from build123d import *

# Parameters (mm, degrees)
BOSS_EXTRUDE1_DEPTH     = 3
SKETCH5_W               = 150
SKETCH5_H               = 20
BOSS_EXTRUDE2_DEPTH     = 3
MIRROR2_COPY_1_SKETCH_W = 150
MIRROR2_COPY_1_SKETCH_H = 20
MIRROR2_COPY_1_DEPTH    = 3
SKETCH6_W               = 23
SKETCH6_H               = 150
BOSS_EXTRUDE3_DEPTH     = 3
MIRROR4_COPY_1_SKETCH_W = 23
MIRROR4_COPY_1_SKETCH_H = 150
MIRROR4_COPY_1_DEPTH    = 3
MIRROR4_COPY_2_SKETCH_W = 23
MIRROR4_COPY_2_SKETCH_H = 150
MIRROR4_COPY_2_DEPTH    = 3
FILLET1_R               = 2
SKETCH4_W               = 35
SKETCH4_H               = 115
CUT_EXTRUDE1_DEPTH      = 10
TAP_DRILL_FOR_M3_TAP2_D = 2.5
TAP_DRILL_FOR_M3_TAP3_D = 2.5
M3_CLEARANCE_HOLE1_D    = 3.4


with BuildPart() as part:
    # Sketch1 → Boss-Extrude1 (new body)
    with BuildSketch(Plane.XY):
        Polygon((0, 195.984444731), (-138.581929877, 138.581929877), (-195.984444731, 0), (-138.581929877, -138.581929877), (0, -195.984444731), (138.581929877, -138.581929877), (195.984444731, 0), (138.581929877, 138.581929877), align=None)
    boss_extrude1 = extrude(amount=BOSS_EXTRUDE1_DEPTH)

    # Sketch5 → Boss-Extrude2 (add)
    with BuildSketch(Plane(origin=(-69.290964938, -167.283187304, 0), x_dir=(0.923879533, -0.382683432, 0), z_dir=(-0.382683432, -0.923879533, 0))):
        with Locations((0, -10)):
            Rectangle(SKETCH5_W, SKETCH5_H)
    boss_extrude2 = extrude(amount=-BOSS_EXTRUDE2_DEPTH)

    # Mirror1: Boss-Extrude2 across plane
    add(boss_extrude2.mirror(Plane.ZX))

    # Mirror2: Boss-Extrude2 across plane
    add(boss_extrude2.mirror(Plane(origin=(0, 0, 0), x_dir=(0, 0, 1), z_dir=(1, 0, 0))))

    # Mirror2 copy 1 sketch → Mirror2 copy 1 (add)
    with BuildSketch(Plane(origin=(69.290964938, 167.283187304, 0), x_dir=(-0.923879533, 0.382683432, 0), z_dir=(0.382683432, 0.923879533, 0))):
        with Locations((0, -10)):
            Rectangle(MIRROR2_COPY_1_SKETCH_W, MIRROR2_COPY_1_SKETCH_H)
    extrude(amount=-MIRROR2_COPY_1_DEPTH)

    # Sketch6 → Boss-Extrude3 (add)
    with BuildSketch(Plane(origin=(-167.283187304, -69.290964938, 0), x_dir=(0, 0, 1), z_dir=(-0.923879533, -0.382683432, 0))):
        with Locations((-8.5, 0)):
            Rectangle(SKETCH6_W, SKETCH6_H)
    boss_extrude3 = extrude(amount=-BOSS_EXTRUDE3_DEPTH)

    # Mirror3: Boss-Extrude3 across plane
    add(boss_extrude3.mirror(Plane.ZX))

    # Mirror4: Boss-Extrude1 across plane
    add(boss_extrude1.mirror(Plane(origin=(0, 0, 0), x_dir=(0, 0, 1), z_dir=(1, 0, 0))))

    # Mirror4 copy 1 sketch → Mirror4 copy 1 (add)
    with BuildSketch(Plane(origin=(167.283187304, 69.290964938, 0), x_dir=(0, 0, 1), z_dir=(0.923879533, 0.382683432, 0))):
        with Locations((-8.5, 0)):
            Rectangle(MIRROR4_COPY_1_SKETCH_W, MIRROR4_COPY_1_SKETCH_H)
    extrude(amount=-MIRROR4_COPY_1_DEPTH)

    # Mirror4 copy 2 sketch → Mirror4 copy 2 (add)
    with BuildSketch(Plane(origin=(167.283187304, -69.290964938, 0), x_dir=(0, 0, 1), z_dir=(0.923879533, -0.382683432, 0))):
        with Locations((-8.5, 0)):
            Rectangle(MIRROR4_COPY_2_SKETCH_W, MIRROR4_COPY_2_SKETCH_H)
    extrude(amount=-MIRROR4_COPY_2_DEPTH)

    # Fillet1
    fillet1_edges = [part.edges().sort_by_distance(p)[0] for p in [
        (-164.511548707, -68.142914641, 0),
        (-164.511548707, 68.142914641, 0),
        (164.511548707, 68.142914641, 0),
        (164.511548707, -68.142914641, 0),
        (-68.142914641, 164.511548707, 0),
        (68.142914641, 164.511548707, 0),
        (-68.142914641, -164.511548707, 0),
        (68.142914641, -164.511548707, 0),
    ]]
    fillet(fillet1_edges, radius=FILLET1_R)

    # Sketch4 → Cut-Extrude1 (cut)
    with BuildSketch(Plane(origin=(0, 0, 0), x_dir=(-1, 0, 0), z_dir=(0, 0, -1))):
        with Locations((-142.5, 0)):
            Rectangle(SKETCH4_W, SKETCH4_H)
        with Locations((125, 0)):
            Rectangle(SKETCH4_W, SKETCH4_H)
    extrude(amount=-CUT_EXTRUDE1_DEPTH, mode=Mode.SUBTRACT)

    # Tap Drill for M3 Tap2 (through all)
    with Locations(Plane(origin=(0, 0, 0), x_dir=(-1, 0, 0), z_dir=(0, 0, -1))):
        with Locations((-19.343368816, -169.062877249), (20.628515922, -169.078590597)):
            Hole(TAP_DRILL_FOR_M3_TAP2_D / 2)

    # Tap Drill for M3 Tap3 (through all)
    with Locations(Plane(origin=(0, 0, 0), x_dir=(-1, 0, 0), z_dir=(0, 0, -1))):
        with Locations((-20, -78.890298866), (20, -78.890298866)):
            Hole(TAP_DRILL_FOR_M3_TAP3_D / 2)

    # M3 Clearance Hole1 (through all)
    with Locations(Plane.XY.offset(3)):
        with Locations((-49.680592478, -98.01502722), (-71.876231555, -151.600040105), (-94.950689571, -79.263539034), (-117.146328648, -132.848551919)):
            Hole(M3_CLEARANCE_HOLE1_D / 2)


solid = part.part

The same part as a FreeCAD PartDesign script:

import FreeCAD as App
import Part
import Sketcher
Q = App.Units.Quantity


def edges_at(feature, points):
    """Names of the edges that pass closest to the given points."""
    edges = feature.Shape.Edges
    near = lambda p: min(range(len(edges)), key=lambda i: edges[i].distToShape(Part.Vertex(*p))[0])
    return sorted({f"Edge{near(p) + 1}" for p in points})

doc = App.newDocument("Part")
params = doc.addObject("Spreadsheet::Sheet", "Params")
for row, (alias, value) in enumerate([
    ("sketch1_length", "150 mm"),
    ("pad1_length", "3 mm"),
    ("sketch2_width", "150 mm"),
    ("sketch2_height", "20 mm"),
    ("pad2_length", "3 mm"),
    ("sketch3_width", "150 mm"),
    ("sketch3_height", "20 mm"),
    ("pad3_length", "3 mm"),
    ("sketch4_width", "23 mm"),
    ("sketch4_height", "150 mm"),
    ("pad4_length", "3 mm"),
    ("sketch5_width", "23 mm"),
    ("sketch5_height", "150 mm"),
    ("pad5_length", "3 mm"),
    ("sketch6_width", "23 mm"),
    ("sketch6_height", "150 mm"),
    ("pad6_length", "3 mm"),
    ("fillet_radius", "2 mm"),
    ("sketch7_width", "35 mm"),
    ("sketch7_height", "115 mm"),
    ("pocket1_length", "10 mm"),
    ("sketch8_diameter", "2.5 mm"),
    ("hole_diameter", "2.5 mm"),
    ("sketch9_diameter", "2.5 mm"),
    ("hole2_diameter", "2.5 mm"),
    ("sketch10_diameter", "3.4 mm"),
    ("hole3_diameter", "3.4 mm"),
], start=1):
    params.set(f"A{row}", alias)
    params.set(f"B{row}", "=" + value)
    params.setAlias(f"B{row}", alias)

body = doc.addObject("PartDesign::Body", "Body")

sketch1 = body.newObject("Sketcher::SketchObject", "Sketch")
sketch1.AttachmentSupport = (doc.getObject("XY_Plane"), [""])
sketch1.MapMode = "FlatFace"
sketch1.addGeometry([
    Part.LineSegment(App.Vector(0, 196, 0), App.Vector(-139, 139, 0)),
    Part.LineSegment(App.Vector(-139, 139, 0), App.Vector(-196, 0, 0)),
    Part.LineSegment(App.Vector(-196, 0, 0), App.Vector(-139, -139, 0)),
    Part.LineSegment(App.Vector(-139, -139, 0), App.Vector(0, -196, 0)),
    Part.LineSegment(App.Vector(0, -196, 0), App.Vector(139, -139, 0)),
    Part.LineSegment(App.Vector(139, -139, 0), App.Vector(196, 0, 0)),
    Part.LineSegment(App.Vector(196, 0, 0), App.Vector(139, 139, 0)),
    Part.LineSegment(App.Vector(139, 139, 0), App.Vector(0, 196, 0)),
], False)
sketch1.addConstraint([
    Sketcher.Constraint("Coincident", 0, 2, 1, 1),
    Sketcher.Constraint("Coincident", 1, 2, 2, 1),
    Sketcher.Constraint("Coincident", 2, 2, 3, 1),
    Sketcher.Constraint("Coincident", 3, 2, 4, 1),
    Sketcher.Constraint("Coincident", 4, 2, 5, 1),
    Sketcher.Constraint("Coincident", 5, 2, 6, 1),
    Sketcher.Constraint("Coincident", 6, 2, 7, 1),
    Sketcher.Constraint("Coincident", 7, 2, 0, 1),
    Sketcher.Constraint("Symmetric", 0, 2, 4, 2, -1, 1),
    Sketcher.Constraint("Symmetric", 1, 2, 5, 2, -1, 1),
    Sketcher.Constraint("Symmetric", 2, 2, 6, 2, -1, 1),
    Sketcher.Constraint("Symmetric", 3, 2, 7, 2, -1, 1),
    Sketcher.Constraint("Symmetric", 2, 2, 4, 2, -2),
    Sketcher.Constraint("PointOnObject", 1, 2, -1),
    Sketcher.Constraint("PointOnObject", 3, 2, -2),
    Sketcher.Constraint("Perpendicular", 0, 2),
    Sketcher.Constraint("Equal", 0, 1),
    Sketcher.Constraint("Distance", 0, Q("150 mm")),
    Sketcher.Constraint("Angle", 0, Q("-157.5 deg")),
])
sketch1.setExpression("Constraints[17]", "Params.sketch1_length")
pad1 = body.newObject("PartDesign::Pad", "Pad")
pad1.Profile = sketch1
pad1.setExpression("Length", "Params.pad1_length")

sketch2 = body.newObject("Sketcher::SketchObject", "Sketch001")
sketch2.Placement = App.Placement(App.Vector(-69.290965, -167.283187, 0), App.Rotation(App.Vector(0.923879533, -0.382683432, 0), App.Vector(0, 0, 1.000000001), App.Vector(-0.382683432, -0.923879533, 0), "ZXY"))
sketch2.addGeometry([
    Part.LineSegment(App.Vector(-75, 0, 0), App.Vector(-75, -20, 0)),
    Part.LineSegment(App.Vector(-75, -20, 0), App.Vector(75, -20, 0)),
    Part.LineSegment(App.Vector(75, -20, 0), App.Vector(75, 0, 0)),
    Part.LineSegment(App.Vector(75, 0, 0), App.Vector(-75, 0, 0)),
], False)
sketch2.addConstraint([
    Sketcher.Constraint("Coincident", 0, 2, 1, 1),
    Sketcher.Constraint("Coincident", 1, 2, 2, 1),
    Sketcher.Constraint("Coincident", 2, 2, 3, 1),
    Sketcher.Constraint("Coincident", 3, 2, 0, 1),
    Sketcher.Constraint("Vertical", 0),
    Sketcher.Constraint("Horizontal", 1),
    Sketcher.Constraint("Vertical", 2),
    Sketcher.Constraint("Horizontal", 3),
    Sketcher.Constraint("Symmetric", 2, 2, 3, 2, -1, 1),
    Sketcher.Constraint("DistanceX", 1, 1, 1, 2, Q("150 mm")),
    Sketcher.Constraint("DistanceY", 0, 2, 0, 1, Q("20 mm")),
])
sketch2.setExpression("Constraints[9]", "Params.sketch2_width")
sketch2.setExpression("Constraints[10]", "Params.sketch2_height")
pad2 = body.newObject("PartDesign::Pad", "Pad001")
pad2.Profile = sketch2
pad2.setExpression("Length", "Params.pad2_length")
pad2.Reversed = True
doc.recompute()

mirrored = body.newObject("PartDesign::Mirrored", "Mirrored")
mirrored.Originals = [pad2]
mirrored.MirrorPlane = (doc.getObject("XZ_Plane"), [""])
body.Tip = mirrored
doc.recompute()

mirrored2 = body.newObject("PartDesign::Mirrored", "Mirrored001")
mirrored2.Originals = [pad2]
mirrored2.MirrorPlane = (doc.getObject("YZ_Plane"), [""])
body.Tip = mirrored2

sketch3 = body.newObject("Sketcher::SketchObject", "Sketch002")
sketch3.Placement = App.Placement(App.Vector(69.290965, 167.283187, 0), App.Rotation(App.Vector(-0.923879533, 0.382683432, 0), App.Vector(0, 0, 1.000000001), App.Vector(0.382683432, 0.923879533, 0), "ZXY"))
sketch3.addGeometry([
    Part.LineSegment(App.Vector(-75, 0, 0), App.Vector(-75, -20, 0)),
    Part.LineSegment(App.Vector(-75, -20, 0), App.Vector(75, -20, 0)),
    Part.LineSegment(App.Vector(75, -20, 0), App.Vector(75, 0, 0)),
    Part.LineSegment(App.Vector(75, 0, 0), App.Vector(-75, 0, 0)),
], False)
sketch3.addConstraint([
    Sketcher.Constraint("Coincident", 0, 2, 1, 1),
    Sketcher.Constraint("Coincident", 1, 2, 2, 1),
    Sketcher.Constraint("Coincident", 2, 2, 3, 1),
    Sketcher.Constraint("Coincident", 3, 2, 0, 1),
    Sketcher.Constraint("Vertical", 0),
    Sketcher.Constraint("Horizontal", 1),
    Sketcher.Constraint("Vertical", 2),
    Sketcher.Constraint("Horizontal", 3),
    Sketcher.Constraint("Symmetric", 2, 2, 3, 2, -1, 1),
    Sketcher.Constraint("DistanceX", 1, 1, 1, 2, Q("150 mm")),
    Sketcher.Constraint("DistanceY", 0, 2, 0, 1, Q("20 mm")),
])
sketch3.setExpression("Constraints[9]", "Params.sketch3_width")
sketch3.setExpression("Constraints[10]", "Params.sketch3_height")
pad3 = body.newObject("PartDesign::Pad", "Pad002")
pad3.Profile = sketch3
pad3.setExpression("Length", "Params.pad3_length")
pad3.Reversed = True

sketch4 = body.newObject("Sketcher::SketchObject", "Sketch003")
sketch4.Placement = App.Placement(App.Vector(-167.283187, -69.290965, 0), App.Rotation(App.Vector(0, 0, 1), App.Vector(-0.382683432, 0.923879533, 0), App.Vector(-0.923879533, -0.382683432, 0), "ZXY"))
sketch4.addGeometry([
    Part.LineSegment(App.Vector(-20, 75, 0), App.Vector(-20, -75, 0)),
    Part.LineSegment(App.Vector(-20, -75, 0), App.Vector(3, -75, 0)),
    Part.LineSegment(App.Vector(3, -75, 0), App.Vector(3, 75, 0)),
    Part.LineSegment(App.Vector(3, 75, 0), App.Vector(-20, 75, 0)),
], False)
sketch4.addConstraint([
    Sketcher.Constraint("Coincident", 0, 2, 1, 1),
    Sketcher.Constraint("Coincident", 1, 2, 2, 1),
    Sketcher.Constraint("Coincident", 2, 2, 3, 1),
    Sketcher.Constraint("Coincident", 3, 2, 0, 1),
    Sketcher.Constraint("Vertical", 0),
    Sketcher.Constraint("Horizontal", 1),
    Sketcher.Constraint("Vertical", 2),
    Sketcher.Constraint("Horizontal", 3),
    Sketcher.Constraint("DistanceX", 1, 1, 1, 2, Q("23 mm")),
    Sketcher.Constraint("DistanceY", 0, 2, 0, 1, Q("150 mm")),
    Sketcher.Constraint("DistanceX", 0, 2, -1, 1, Q("20 mm")),
    Sketcher.Constraint("DistanceY", 0, 2, -1, 1, Q("75 mm")),
])
sketch4.setExpression("Constraints[8]", "Params.sketch4_width")
sketch4.setExpression("Constraints[9]", "Params.sketch4_height")
pad4 = body.newObject("PartDesign::Pad", "Pad003")
pad4.Profile = sketch4
pad4.setExpression("Length", "Params.pad4_length")
pad4.Reversed = True
doc.recompute()

mirrored3 = body.newObject("PartDesign::Mirrored", "Mirrored002")
mirrored3.Originals = [pad4]
mirrored3.MirrorPlane = (doc.getObject("XZ_Plane"), [""])
body.Tip = mirrored3
doc.recompute()

mirrored4 = body.newObject("PartDesign::Mirrored", "Mirrored003")
mirrored4.Originals = [pad1]
mirrored4.MirrorPlane = (doc.getObject("YZ_Plane"), [""])
body.Tip = mirrored4

sketch5 = body.newObject("Sketcher::SketchObject", "Sketch004")
sketch5.Placement = App.Placement(App.Vector(167.283187, 69.290965, 0), App.Rotation(App.Vector(0, 0, 1), App.Vector(0.382683432, -0.923879533, 0), App.Vector(0.923879533, 0.382683432, 0), "ZXY"))
sketch5.addGeometry([
    Part.LineSegment(App.Vector(-20, 75, 0), App.Vector(-20, -75, 0)),
    Part.LineSegment(App.Vector(-20, -75, 0), App.Vector(3, -75, 0)),
    Part.LineSegment(App.Vector(3, -75, 0), App.Vector(3, 75, 0)),
    Part.LineSegment(App.Vector(3, 75, 0), App.Vector(-20, 75, 0)),
], False)
sketch5.addConstraint([
    Sketcher.Constraint("Coincident", 0, 2, 1, 1),
    Sketcher.Constraint("Coincident", 1, 2, 2, 1),
    Sketcher.Constraint("Coincident", 2, 2, 3, 1),
    Sketcher.Constraint("Coincident", 3, 2, 0, 1),
    Sketcher.Constraint("Vertical", 0),
    Sketcher.Constraint("Horizontal", 1),
    Sketcher.Constraint("Vertical", 2),
    Sketcher.Constraint("Horizontal", 3),
    Sketcher.Constraint("DistanceX", 1, 1, 1, 2, Q("23 mm")),
    Sketcher.Constraint("DistanceY", 0, 2, 0, 1, Q("150 mm")),
    Sketcher.Constraint("DistanceX", 0, 2, -1, 1, Q("20 mm")),
    Sketcher.Constraint("DistanceY", 0, 2, -1, 1, Q("75 mm")),
])
sketch5.setExpression("Constraints[8]", "Params.sketch5_width")
sketch5.setExpression("Constraints[9]", "Params.sketch5_height")
pad5 = body.newObject("PartDesign::Pad", "Pad004")
pad5.Profile = sketch5
pad5.setExpression("Length", "Params.pad5_length")
pad5.Reversed = True

sketch6 = body.newObject("Sketcher::SketchObject", "Sketch005")
sketch6.Placement = App.Placement(App.Vector(167.283187, -69.290965, 0), App.Rotation(App.Vector(0, 0, 1), App.Vector(-0.382683432, -0.923879533, 0), App.Vector(0.923879533, -0.382683432, 0), "ZXY"))
sketch6.addGeometry([
    Part.LineSegment(App.Vector(-20, 75, 0), App.Vector(-20, -75, 0)),
    Part.LineSegment(App.Vector(-20, -75, 0), App.Vector(3, -75, 0)),
    Part.LineSegment(App.Vector(3, -75, 0), App.Vector(3, 75, 0)),
    Part.LineSegment(App.Vector(3, 75, 0), App.Vector(-20, 75, 0)),
], False)
sketch6.addConstraint([
    Sketcher.Constraint("Coincident", 0, 2, 1, 1),
    Sketcher.Constraint("Coincident", 1, 2, 2, 1),
    Sketcher.Constraint("Coincident", 2, 2, 3, 1),
    Sketcher.Constraint("Coincident", 3, 2, 0, 1),
    Sketcher.Constraint("Vertical", 0),
    Sketcher.Constraint("Horizontal", 1),
    Sketcher.Constraint("Vertical", 2),
    Sketcher.Constraint("Horizontal", 3),
    Sketcher.Constraint("DistanceX", 1, 1, 1, 2, Q("23 mm")),
    Sketcher.Constraint("DistanceY", 0, 2, 0, 1, Q("150 mm")),
    Sketcher.Constraint("DistanceX", 0, 2, -1, 1, Q("20 mm")),
    Sketcher.Constraint("DistanceY", 0, 2, -1, 1, Q("75 mm")),
])
sketch6.setExpression("Constraints[8]", "Params.sketch6_width")
sketch6.setExpression("Constraints[9]", "Params.sketch6_height")
pad6 = body.newObject("PartDesign::Pad", "Pad005")
pad6.Profile = sketch6
pad6.setExpression("Length", "Params.pad6_length")
pad6.Reversed = True
doc.recompute()

fillet = body.newObject("PartDesign::Fillet", "Fillet")
fillet.Base = (pad6, edges_at(pad6, [
    (-164.512, -68.143, 0),
    (-164.512, 68.143, 0),
    (164.512, 68.143, 0),
    (164.512, -68.143, 0),
    (-68.143, 164.512, 0),
    (68.143, 164.512, 0),
    (-68.143, -164.512, 0),
    (68.143, -164.512, 0),
]))
fillet.setExpression("Radius", "Params.fillet_radius")

sketch7 = body.newObject("Sketcher::SketchObject", "Sketch006")
sketch7.AttachmentSupport = (doc.getObject("XY_Plane"), [""])
sketch7.MapMode = "FlatFace"
sketch7.addGeometry([
    Part.LineSegment(App.Vector(160, 58, 0), App.Vector(160, -58, 0)),
    Part.LineSegment(App.Vector(160, -58, 0), App.Vector(125, -58, 0)),
    Part.LineSegment(App.Vector(125, -58, 0), App.Vector(125, 58, 0)),
    Part.LineSegment(App.Vector(125, 58, 0), App.Vector(160, 58, 0)),
    Part.LineSegment(App.Vector(-108, 58, 0), App.Vector(-108, -58, 0)),
    Part.LineSegment(App.Vector(-108, -58, 0), App.Vector(-142, -58, 0)),
    Part.LineSegment(App.Vector(-142, -58, 0), App.Vector(-142, 58, 0)),
    Part.LineSegment(App.Vector(-142, 58, 0), App.Vector(-108, 58, 0)),
], False)
sketch7.addConstraint([
    Sketcher.Constraint("Coincident", 0, 2, 1, 1),
    Sketcher.Constraint("Coincident", 1, 2, 2, 1),
    Sketcher.Constraint("Coincident", 2, 2, 3, 1),
    Sketcher.Constraint("Coincident", 3, 2, 0, 1),
    Sketcher.Constraint("Coincident", 4, 2, 5, 1),
    Sketcher.Constraint("Coincident", 5, 2, 6, 1),
    Sketcher.Constraint("Coincident", 6, 2, 7, 1),
    Sketcher.Constraint("Coincident", 7, 2, 4, 1),
    Sketcher.Constraint("Vertical", 0),
    Sketcher.Constraint("Horizontal", 1),
    Sketcher.Constraint("Vertical", 2),
    Sketcher.Constraint("Horizontal", 3),
    Sketcher.Constraint("Vertical", 4),
    Sketcher.Constraint("Horizontal", 5),
    Sketcher.Constraint("Vertical", 6),
    Sketcher.Constraint("Horizontal", 7),
    Sketcher.Constraint("Horizontal", 1, 2, 4, 2),
    Sketcher.Constraint("Horizontal", 3, 2, 6, 2),
    Sketcher.Constraint("Equal", 3, 5),
    Sketcher.Constraint("DistanceX", 1, 2, 1, 1, Q("35 mm")),
    Sketcher.Constraint("DistanceY", 0, 2, 0, 1, Q("115 mm")),
    Sketcher.Constraint("DistanceX", -1, 1, 0, 2, Q("160 mm")),
    Sketcher.Constraint("DistanceY", 0, 2, -1, 1, Q("57.5 mm")),
    Sketcher.Constraint("DistanceX", 4, 2, -1, 1, Q("107.5 mm")),
])
sketch7.setExpression("Constraints[19]", "Params.sketch7_width")
sketch7.setExpression("Constraints[20]", "Params.sketch7_height")
pocket1 = body.newObject("PartDesign::Pocket", "Pocket")
pocket1.Profile = sketch7
pocket1.setExpression("Length", "Params.pocket1_length")
pocket1.Reversed = True

sketch8 = body.newObject("Sketcher::SketchObject", "Sketch007")
sketch8.AttachmentSupport = (doc.getObject("XY_Plane"), [""])
sketch8.MapMode = "FlatFace"
sketch8.addGeometry([
    Part.Circle(App.Vector(19.3, -169.1, 0), App.Vector(0, 0, 1), 1.2),
    Part.Circle(App.Vector(-20.6, -169.1, 0), App.Vector(0, 0, 1), 1.2),
], False)
sketch8.addConstraint([
    Sketcher.Constraint("Equal", 0, 1),
    Sketcher.Constraint("Diameter", 0, Q("2.5 mm")),
    Sketcher.Constraint("DistanceX", -1, 1, 0, 3, Q("19.343369 mm")),
    Sketcher.Constraint("DistanceY", 1, 3, -1, 1, Q("169.078591 mm")),
    Sketcher.Constraint("DistanceY", 0, 3, -1, 1, Q("169.062877 mm")),
    Sketcher.Constraint("DistanceX", 1, 3, -1, 1, Q("20.628516 mm")),
])
sketch8.setExpression("Constraints[1]", "Params.sketch8_diameter")
doc.recompute()
hole = body.newObject("PartDesign::Hole", "Hole")
hole.Profile = sketch8
hole.ThreadType = "None"
hole.setExpression("Diameter", "Params.hole_diameter")
hole.DepthType = "ThroughAll"
hole.Reversed = True

sketch9 = body.newObject("Sketcher::SketchObject", "Sketch008")
sketch9.AttachmentSupport = (doc.getObject("XY_Plane"), [""])
sketch9.MapMode = "FlatFace"
sketch9.addGeometry([
    Part.Circle(App.Vector(20, -78.9, 0), App.Vector(0, 0, 1), 1.2),
    Part.Circle(App.Vector(-20, -78.9, 0), App.Vector(0, 0, 1), 1.2),
], False)
sketch9.addConstraint([
    Sketcher.Constraint("Equal", 0, 1),
    Sketcher.Constraint("Symmetric", 0, 3, 1, 3, -2),
    Sketcher.Constraint("Diameter", 0, Q("2.5 mm")),
    Sketcher.Constraint("DistanceX", -1, 1, 0, 3, Q("20 mm")),
    Sketcher.Constraint("DistanceY", 0, 3, -1, 1, Q("78.890299 mm")),
])
sketch9.setExpression("Constraints[2]", "Params.sketch9_diameter")
doc.recompute()
hole2 = body.newObject("PartDesign::Hole", "Hole001")
hole2.Profile = sketch9
hole2.ThreadType = "None"
hole2.setExpression("Diameter", "Params.hole2_diameter")
hole2.DepthType = "ThroughAll"
hole2.Reversed = True

sketch10 = body.newObject("Sketcher::SketchObject", "Sketch009")
sketch10.AttachmentSupport = (doc.getObject("XY_Plane"), [""])
sketch10.MapMode = "FlatFace"
sketch10.AttachmentOffset = App.Placement(App.Vector(0, 0, 3), App.Rotation())
sketch10.addGeometry([
    Part.Circle(App.Vector(-49.7, -98, 0), App.Vector(0, 0, 1), 1.7),
    Part.Circle(App.Vector(-71.9, -151.6, 0), App.Vector(0, 0, 1), 1.7),
    Part.Circle(App.Vector(-95, -79.3, 0), App.Vector(0, 0, 1), 1.7),
    Part.Circle(App.Vector(-117.1, -132.8, 0), App.Vector(0, 0, 1), 1.7),
], False)
sketch10.addConstraint([
    Sketcher.Constraint("Equal", 0, 1),
    Sketcher.Constraint("Equal", 1, 2),
    Sketcher.Constraint("Equal", 2, 3),
    Sketcher.Constraint("Diameter", 0, Q("3.4 mm")),
    Sketcher.Constraint("DistanceY", 1, 3, 2, 3, Q("72.336501 mm")),
    Sketcher.Constraint("DistanceX", 1, 3, -1, 1, Q("71.876232 mm")),
    Sketcher.Constraint("DistanceY", 1, 3, -1, 1, Q("151.60004 mm")),
    Sketcher.Constraint("DistanceX", 2, 3, -1, 1, Q("94.95069 mm")),
    Sketcher.Constraint("DistanceX", 3, 3, -1, 1, Q("117.146329 mm")),
    Sketcher.Constraint("DistanceY", 3, 3, -1, 1, Q("132.848552 mm")),
    Sketcher.Constraint("DistanceX", 1, 3, 0, 3, Q("22.195639 mm")),
    Sketcher.Constraint("DistanceY", 0, 3, 2, 3, Q("18.751488 mm")),
])
sketch10.setExpression("Constraints[3]", "Params.sketch10_diameter")
doc.recompute()
hole3 = body.newObject("PartDesign::Hole", "Hole002")
hole3.Profile = sketch10
hole3.ThreadType = "None"
hole3.setExpression("Diameter", "Params.hole3_diameter")
hole3.DepthType = "ThroughAll"

doc.recompute()
